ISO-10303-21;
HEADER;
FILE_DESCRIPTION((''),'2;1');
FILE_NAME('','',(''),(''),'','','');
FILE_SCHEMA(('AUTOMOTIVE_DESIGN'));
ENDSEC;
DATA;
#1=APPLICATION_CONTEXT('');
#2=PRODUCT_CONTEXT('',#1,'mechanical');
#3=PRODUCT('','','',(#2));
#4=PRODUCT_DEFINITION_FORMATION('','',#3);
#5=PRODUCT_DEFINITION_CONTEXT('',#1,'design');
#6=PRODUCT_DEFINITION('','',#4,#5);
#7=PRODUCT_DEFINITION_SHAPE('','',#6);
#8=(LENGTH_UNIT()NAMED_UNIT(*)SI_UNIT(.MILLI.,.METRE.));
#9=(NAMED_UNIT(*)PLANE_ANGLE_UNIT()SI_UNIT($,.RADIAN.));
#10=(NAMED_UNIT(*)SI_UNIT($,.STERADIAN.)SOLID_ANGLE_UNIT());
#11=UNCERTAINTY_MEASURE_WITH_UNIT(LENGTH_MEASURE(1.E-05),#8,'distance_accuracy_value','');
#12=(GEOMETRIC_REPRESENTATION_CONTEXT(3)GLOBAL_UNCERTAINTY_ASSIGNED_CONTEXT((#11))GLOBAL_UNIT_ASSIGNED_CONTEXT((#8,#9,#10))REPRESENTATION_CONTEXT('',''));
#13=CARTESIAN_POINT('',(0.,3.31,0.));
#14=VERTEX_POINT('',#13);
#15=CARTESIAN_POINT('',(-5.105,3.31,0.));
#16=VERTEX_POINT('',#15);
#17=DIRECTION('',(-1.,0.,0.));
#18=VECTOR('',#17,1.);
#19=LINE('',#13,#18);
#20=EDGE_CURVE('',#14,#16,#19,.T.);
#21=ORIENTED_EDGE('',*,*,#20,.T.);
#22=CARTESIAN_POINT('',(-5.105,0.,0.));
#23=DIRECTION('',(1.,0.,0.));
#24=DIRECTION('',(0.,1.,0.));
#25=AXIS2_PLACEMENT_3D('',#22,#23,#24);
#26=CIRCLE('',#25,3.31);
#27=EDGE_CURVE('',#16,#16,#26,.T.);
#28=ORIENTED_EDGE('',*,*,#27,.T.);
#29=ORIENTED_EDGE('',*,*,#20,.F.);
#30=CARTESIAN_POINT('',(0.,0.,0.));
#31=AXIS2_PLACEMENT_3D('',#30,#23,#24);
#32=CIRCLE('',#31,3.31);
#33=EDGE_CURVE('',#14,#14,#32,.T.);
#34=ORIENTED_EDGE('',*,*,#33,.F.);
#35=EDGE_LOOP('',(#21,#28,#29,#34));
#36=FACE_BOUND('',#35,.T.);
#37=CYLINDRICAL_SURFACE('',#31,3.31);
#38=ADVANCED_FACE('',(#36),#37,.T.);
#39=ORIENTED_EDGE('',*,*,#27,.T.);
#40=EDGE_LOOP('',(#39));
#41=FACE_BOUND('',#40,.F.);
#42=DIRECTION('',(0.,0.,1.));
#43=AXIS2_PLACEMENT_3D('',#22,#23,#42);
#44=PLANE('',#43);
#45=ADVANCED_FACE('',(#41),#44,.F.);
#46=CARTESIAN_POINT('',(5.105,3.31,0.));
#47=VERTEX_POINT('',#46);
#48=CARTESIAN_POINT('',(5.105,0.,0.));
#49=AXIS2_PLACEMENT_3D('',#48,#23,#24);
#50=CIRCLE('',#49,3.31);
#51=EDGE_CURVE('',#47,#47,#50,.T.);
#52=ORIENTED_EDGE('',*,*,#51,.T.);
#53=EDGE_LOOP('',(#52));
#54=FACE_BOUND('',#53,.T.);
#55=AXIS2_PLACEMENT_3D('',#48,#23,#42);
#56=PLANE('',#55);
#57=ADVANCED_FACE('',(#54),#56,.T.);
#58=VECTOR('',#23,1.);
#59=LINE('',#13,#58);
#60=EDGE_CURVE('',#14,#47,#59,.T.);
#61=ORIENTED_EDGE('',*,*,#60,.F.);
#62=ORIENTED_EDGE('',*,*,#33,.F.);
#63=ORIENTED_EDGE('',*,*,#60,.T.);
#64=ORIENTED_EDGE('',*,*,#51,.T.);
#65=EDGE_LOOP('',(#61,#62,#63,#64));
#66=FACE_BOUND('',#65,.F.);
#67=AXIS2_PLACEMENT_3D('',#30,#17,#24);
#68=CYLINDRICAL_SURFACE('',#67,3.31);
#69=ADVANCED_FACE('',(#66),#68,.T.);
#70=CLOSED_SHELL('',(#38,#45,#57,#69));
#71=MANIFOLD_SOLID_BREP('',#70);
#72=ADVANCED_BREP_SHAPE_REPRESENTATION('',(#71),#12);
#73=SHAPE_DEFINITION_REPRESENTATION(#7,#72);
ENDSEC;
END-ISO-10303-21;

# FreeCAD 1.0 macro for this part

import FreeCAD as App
import Part
import Sketcher
from FreeCAD import Vector
Q = App.Units.Quantity

doc = App.newDocument("Part")
body = doc.addObject("PartDesign::Body", "Body")

sketch1 = body.newObject("Sketcher::SketchObject", "Sketch")
sketch1.AttachmentSupport = (doc.getObject("YZ_Plane"), [""])
sketch1.MapMode = "FlatFace"
sketch1.addGeometry(Part.Circle(Vector(0, 0, 0), Vector(0, 0, 1), 3.3), False)
sketch1.addConstraint([
    Sketcher.Constraint("Coincident", 0, 3, -1, 1),
    Sketcher.Constraint("Diameter", 0, Q("6.62 mm")),
])
pad1 = body.newObject("PartDesign::Pad", "Pad")
pad1.Profile = sketch1
pad1.Length = 10.21
pad1.Midplane = True

doc.recompute()
